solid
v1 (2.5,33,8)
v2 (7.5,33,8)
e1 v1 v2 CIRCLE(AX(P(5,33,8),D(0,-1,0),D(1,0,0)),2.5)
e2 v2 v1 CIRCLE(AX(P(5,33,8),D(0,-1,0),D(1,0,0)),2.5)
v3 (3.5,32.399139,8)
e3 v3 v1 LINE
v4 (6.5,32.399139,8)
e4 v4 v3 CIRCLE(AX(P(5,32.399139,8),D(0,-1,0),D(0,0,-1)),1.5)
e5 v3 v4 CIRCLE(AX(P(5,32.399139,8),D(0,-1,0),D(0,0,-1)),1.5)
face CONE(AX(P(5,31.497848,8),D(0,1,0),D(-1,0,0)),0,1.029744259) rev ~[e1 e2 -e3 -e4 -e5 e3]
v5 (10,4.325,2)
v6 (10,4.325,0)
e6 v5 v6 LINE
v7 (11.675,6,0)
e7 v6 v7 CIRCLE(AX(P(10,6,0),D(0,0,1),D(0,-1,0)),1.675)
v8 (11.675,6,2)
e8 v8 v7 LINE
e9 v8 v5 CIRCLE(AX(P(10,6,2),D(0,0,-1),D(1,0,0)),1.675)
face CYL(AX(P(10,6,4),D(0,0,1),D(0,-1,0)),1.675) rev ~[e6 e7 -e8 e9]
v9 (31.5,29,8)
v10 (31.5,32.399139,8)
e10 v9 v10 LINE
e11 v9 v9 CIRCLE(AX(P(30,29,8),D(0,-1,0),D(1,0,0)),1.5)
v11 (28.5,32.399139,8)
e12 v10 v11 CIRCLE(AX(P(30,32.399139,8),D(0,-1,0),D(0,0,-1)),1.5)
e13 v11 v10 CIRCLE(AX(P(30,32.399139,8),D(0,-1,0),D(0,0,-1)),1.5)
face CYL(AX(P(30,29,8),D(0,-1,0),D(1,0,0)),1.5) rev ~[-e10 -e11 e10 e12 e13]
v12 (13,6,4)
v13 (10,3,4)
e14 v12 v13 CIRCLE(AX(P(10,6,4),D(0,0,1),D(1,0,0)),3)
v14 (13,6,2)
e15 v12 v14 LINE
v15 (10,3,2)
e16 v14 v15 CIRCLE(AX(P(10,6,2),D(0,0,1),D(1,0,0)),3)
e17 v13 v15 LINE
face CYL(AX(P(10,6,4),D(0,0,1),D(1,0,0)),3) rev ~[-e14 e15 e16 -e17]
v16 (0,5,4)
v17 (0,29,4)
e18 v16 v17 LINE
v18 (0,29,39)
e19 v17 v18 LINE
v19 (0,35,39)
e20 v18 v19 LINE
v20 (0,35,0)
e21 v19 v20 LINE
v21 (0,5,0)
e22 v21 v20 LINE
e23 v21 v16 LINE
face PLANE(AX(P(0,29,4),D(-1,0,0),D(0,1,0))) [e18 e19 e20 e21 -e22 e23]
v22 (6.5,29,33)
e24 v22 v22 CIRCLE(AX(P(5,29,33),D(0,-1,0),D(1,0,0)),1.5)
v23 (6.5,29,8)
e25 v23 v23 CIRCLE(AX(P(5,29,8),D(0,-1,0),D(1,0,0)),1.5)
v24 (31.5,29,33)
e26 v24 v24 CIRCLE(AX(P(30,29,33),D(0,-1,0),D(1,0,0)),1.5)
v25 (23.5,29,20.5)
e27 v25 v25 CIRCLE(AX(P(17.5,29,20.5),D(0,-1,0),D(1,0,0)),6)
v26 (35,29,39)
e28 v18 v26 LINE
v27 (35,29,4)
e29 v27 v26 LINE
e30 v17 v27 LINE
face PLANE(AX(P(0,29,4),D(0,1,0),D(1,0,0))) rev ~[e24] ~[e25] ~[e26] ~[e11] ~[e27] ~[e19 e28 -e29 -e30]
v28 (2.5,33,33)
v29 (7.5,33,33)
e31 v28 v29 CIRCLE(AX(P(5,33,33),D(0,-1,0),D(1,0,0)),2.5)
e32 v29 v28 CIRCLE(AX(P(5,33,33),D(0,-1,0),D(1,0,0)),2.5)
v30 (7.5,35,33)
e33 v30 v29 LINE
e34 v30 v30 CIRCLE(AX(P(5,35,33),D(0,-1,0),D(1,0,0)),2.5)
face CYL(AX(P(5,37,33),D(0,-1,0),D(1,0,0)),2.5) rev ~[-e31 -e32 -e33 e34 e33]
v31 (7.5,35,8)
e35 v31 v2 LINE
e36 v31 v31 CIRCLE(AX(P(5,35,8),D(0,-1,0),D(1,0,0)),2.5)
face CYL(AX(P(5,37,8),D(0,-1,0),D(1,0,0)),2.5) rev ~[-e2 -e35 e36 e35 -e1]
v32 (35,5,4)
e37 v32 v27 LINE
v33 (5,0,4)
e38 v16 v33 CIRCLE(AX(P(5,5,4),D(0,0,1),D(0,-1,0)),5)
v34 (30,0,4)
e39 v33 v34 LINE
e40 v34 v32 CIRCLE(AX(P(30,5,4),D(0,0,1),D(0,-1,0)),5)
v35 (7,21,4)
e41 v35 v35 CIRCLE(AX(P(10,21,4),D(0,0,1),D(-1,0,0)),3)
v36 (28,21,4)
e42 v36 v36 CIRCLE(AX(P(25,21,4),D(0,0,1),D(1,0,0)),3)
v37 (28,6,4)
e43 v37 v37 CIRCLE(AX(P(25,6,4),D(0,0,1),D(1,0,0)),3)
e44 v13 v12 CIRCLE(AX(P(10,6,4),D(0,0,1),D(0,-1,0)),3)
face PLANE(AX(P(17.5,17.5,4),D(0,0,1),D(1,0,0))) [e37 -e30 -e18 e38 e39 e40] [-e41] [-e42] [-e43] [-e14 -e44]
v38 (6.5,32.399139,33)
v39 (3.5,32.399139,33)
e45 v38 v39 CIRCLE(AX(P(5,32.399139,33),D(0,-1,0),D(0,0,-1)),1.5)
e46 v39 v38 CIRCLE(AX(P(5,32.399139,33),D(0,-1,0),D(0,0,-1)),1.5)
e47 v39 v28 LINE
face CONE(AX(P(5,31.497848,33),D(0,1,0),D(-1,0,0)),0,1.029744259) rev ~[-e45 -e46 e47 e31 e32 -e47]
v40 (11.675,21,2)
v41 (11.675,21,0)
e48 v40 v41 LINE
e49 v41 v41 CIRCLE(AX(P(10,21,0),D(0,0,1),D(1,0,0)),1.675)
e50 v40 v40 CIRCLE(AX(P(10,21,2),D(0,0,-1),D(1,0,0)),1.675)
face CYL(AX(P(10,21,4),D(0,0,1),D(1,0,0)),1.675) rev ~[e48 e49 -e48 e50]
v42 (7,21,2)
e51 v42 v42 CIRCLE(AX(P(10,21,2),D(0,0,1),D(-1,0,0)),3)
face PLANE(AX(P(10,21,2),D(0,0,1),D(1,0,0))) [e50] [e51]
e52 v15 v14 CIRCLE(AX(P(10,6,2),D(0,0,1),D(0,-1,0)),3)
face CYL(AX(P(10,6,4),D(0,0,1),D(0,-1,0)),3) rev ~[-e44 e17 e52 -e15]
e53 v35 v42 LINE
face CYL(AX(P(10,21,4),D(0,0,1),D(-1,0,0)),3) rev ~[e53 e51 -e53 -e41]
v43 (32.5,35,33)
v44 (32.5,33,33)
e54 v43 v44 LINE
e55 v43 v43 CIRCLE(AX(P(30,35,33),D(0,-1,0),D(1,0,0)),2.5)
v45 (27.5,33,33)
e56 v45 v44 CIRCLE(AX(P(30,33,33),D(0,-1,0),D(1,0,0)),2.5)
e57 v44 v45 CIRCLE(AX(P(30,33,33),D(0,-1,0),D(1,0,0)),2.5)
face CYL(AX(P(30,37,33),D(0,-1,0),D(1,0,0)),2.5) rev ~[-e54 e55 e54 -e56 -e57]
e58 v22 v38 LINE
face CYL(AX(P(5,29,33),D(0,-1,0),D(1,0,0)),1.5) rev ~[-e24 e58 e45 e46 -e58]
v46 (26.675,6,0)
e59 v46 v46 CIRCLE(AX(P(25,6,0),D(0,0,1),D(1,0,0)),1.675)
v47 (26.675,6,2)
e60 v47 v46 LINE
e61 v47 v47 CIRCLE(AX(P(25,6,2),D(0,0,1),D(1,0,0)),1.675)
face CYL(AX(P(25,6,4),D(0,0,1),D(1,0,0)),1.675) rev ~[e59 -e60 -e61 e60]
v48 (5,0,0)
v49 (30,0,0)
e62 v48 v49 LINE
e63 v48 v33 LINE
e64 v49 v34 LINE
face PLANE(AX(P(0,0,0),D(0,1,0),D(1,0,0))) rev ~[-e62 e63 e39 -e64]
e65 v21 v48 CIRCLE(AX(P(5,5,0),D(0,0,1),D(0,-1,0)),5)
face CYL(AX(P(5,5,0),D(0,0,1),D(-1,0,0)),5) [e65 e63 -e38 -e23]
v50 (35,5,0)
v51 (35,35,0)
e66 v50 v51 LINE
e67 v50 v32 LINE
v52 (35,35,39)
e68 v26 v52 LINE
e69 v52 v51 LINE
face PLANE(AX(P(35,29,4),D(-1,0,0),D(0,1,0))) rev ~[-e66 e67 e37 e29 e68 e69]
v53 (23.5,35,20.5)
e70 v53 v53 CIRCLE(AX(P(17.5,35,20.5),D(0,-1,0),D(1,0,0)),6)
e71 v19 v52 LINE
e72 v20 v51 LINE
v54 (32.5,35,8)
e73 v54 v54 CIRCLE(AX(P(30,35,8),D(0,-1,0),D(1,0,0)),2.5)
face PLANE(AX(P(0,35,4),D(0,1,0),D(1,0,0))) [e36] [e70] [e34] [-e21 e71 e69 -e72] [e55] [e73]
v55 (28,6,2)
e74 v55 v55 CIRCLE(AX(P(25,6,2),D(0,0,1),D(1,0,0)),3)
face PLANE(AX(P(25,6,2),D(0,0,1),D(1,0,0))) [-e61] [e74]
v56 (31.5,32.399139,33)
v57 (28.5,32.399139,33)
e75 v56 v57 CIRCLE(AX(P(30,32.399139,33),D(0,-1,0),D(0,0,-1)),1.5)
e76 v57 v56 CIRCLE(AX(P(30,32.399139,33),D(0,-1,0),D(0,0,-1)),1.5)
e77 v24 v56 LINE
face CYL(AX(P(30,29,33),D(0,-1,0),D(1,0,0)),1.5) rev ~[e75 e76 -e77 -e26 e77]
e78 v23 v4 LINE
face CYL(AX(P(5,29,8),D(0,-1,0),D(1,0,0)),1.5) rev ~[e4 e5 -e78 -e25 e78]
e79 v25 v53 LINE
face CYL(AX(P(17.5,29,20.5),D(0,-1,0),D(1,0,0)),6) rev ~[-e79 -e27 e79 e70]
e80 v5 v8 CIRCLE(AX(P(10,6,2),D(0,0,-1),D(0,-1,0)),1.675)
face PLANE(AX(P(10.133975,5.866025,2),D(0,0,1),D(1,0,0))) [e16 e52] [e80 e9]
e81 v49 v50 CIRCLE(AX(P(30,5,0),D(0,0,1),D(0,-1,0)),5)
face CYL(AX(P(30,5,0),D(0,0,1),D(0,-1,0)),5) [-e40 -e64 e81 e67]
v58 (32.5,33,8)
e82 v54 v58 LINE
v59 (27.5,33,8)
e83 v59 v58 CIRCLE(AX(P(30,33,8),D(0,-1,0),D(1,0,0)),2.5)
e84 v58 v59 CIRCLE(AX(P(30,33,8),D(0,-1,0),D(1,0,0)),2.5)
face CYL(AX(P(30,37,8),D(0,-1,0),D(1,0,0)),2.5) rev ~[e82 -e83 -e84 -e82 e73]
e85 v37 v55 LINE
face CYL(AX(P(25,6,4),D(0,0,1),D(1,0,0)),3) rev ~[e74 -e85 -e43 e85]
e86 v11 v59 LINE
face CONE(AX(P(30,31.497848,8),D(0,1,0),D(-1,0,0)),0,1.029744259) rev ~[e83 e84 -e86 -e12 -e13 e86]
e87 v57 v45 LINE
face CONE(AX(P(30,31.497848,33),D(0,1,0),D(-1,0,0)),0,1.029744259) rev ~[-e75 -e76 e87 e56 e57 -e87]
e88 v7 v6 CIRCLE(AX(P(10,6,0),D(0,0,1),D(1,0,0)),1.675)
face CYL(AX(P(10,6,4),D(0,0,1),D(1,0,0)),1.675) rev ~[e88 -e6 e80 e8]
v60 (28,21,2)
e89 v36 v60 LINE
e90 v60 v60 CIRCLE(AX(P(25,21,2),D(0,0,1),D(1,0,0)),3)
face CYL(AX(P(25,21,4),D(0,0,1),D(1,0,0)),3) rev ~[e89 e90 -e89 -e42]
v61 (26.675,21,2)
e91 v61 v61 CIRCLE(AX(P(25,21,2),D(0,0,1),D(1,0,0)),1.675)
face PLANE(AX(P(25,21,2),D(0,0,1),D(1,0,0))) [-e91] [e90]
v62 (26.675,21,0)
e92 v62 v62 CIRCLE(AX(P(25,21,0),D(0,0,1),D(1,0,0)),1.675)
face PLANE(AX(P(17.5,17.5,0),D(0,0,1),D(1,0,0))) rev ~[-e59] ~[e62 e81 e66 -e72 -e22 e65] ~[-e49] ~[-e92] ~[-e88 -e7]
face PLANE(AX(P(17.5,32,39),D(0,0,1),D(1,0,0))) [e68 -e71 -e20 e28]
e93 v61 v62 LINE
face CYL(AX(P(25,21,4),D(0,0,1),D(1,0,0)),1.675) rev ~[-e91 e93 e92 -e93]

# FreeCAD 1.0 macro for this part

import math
import FreeCAD as App
import Part
import Sketcher
from FreeCAD import Vector


def edges_at(feature, points):
    """Names of the edges that pass closest to the given points."""
    edges = feature.Shape.Edges
    near = lambda p: min(range(len(edges)), key=lambda i: edges[i].distToShape(Part.Vertex(*p))[0])
    return sorted({f"Edge{near(p) + 1}" for p in points})


def add_polygon(sketch, points):
    """Adds a closed chain of lines whose ends are joined by coincident constraints."""
    first, n = sketch.GeometryCount, len(points)
    for a, b in zip(points, points[1:] + points[:1]):
        sketch.addGeometry(Part.LineSegment(App.Vector(*a, 0), App.Vector(*b, 0)), False)
    for i in range(n):
        sketch.addConstraint(Sketcher.Constraint("Coincident", first + i, 2, first + (i + 1) % n, 1))

doc = App.newDocument("Part")
body = doc.addObject("PartDesign::Body", "Body")

# Sketch on XY plane
sketch1 = doc.addObject("Sketcher::SketchObject", "Sketch")
body.addObject(sketch1)
sketch1.AttachmentSupport = (doc.XY_Plane, [""])
sketch1.MapMode = "FlatFace"
add_polygon(sketch1, [(0, 35), (0, 0), (35, 0), (35, 35)])  # lines 0-3
sketch1.addConstraint([
    Sketcher.Constraint("Vertical", 0),
    Sketcher.Constraint("Horizontal", 1),
    Sketcher.Constraint("Vertical", 2),
    Sketcher.Constraint("Horizontal", 3),
    Sketcher.Constraint("Coincident", 0, 2, -1, 1),
    Sketcher.Constraint("Equal", 3, 0),
    Sketcher.Constraint("DistanceX", 1, 1, 1, 2, 35.0),
])
pad1 = doc.addObject("PartDesign::Pad", "Pad")
body.addObject(pad1)
pad1.Profile = sketch1
pad1.Length = 4

# Sketch on XY plane
sketch2 = doc.addObject("Sketcher::SketchObject", "Sketch001")
body.addObject(sketch2)
sketch2.AttachmentSupport = (doc.XY_Plane, [""])
sketch2.MapMode = "FlatFace"
sketch2.AttachmentOffset = App.Placement(Vector(0, 0, 4), App.Rotation())
sketch2.addGeometry([
    Part.Circle(Vector(10, 21, 0), Vector(0, 0, 1), 3),  # 0
    Part.Circle(Vector(10, 21, 0), Vector(0, 0, 1), 1.675),  # 1
    Part.Circle(Vector(25, 21, 0), Vector(0, 0, 1), 3),  # 2
    Part.Circle(Vector(25, 21, 0), Vector(0, 0, 1), 1.675),  # 3
    Part.Circle(Vector(25, 6, 0), Vector(0, 0, 1), 3),  # 4
    Part.Circle(Vector(25, 6, 0), Vector(0, 0, 1), 1.675),  # 5
    Part.ArcOfCircle(Part.Circle(Vector(10, 6, 0), Vector(0, 0, 1), 3), math.radians(0), math.radians(270)),  # 6
    Part.ArcOfCircle(Part.Circle(Vector(10, 6, 0), Vector(0, 0, 1), 3), math.radians(-90), math.radians(0)),  # 7
    Part.ArcOfCircle(Part.Circle(Vector(10, 6, 0), Vector(0, 0, 1), 1.675), math.radians(0), math.radians(270)),  # 8
    Part.ArcOfCircle(Part.Circle(Vector(10, 6, 0), Vector(0, 0, 1), 1.675), math.radians(-90), math.radians(0)),  # 9
], False)
sketch2.addConstraint([
    Sketcher.Constraint("Tangent", 6, 1, 7, 2),
    Sketcher.Constraint("Coincident", 7, 1, 6, 2),
    Sketcher.Constraint("Tangent", 8, 1, 9, 2),
    Sketcher.Constraint("Coincident", 9, 1, 8, 2),
    Sketcher.Constraint("Coincident", 1, 3, 0, 3),
    Sketcher.Constraint("Coincident", 3, 3, 2, 3),
    Sketcher.Constraint("Coincident", 5, 3, 4, 3),
    Sketcher.Constraint("Coincident", 8, 3, 6, 3),
    Sketcher.Constraint("Equal", 0, 2),
    Sketcher.Constraint("Equal", 1, 3),
    Sketcher.Constraint("Equal", 2, 4),
    Sketcher.Constraint("Equal", 3, 5),
    Sketcher.Constraint("Equal", 4, 6),
    Sketcher.Constraint("Equal", 5, 8),
    Sketcher.Constraint("Horizontal", 1, 3, 2, 3),
    Sketcher.Constraint("Horizontal", 5, 3, 6, 3),
    Sketcher.Constraint("Horizontal", 9, 3, 6, 1),
    Sketcher.Constraint("Horizontal", 6, 1, 8, 1),
    Sketcher.Constraint("Vertical", 3, 3, 4, 3),
    Sketcher.Constraint("Vertical", 1, 3, 6, 3),
    Sketcher.Constraint("Vertical", 9, 3, 7, 1),
    Sketcher.Constraint("Vertical", 7, 1, 9, 1),
    Sketcher.Constraint("Diameter", 0, 6.0),
    Sketcher.Constraint("Diameter", 1, 3.35),
    Sketcher.Constraint("DistanceX", -1, 1, 0, 3, 10.0),
    Sketcher.Constraint("DistanceY", -1, 1, 0, 3, 21.0),
    Sketcher.Constraint("DistanceX", -1, 1, 2, 3, 25.0),
    Sketcher.Constraint("DistanceY", -1, 1, 4, 3, 6.0),
])
pocket1 = doc.addObject("PartDesign::Pocket", "Pocket")
body.addObject(pocket1)
pocket1.Profile = sketch2
pocket1.Length = 2
doc.recompute()

fillet = doc.addObject("PartDesign::Fillet", "Fillet")
body.addObject(fillet)
fillet.Base = (pocket1, edges_at(pocket1, [(0, 0, 2), (35, 0, 2)]))
fillet.Radius = 5

# Sketch on XY plane
sketch3 = doc.addObject("Sketcher::SketchObject", "Sketch002")
body.addObject(sketch3)
sketch3.AttachmentSupport = (doc.XY_Plane, [""])
sketch3.MapMode = "FlatFace"
sketch3.AttachmentOffset = App.Placement(Vector(0, 0, 4), App.Rotation())
sketch3.addGeometry([
    Part.Circle(Vector(10, 21, 0), Vector(0, 0, 1), 1.675),  # 0
    Part.Circle(Vector(25, 21, 0), Vector(0, 0, 1), 1.675),  # 1
    Part.Circle(Vector(25, 6, 0), Vector(0, 0, 1), 1.675),  # 2
    Part.ArcOfCircle(Part.Circle(Vector(10, 6, 0), Vector(0, 0, 1), 1.675), math.radians(0), math.radians(270)),  # 3
    Part.ArcOfCircle(Part.Circle(Vector(10, 6, 0), Vector(0, 0, 1), 1.675), math.radians(-90), math.radians(0)),  # 4
], False)
sketch3.addConstraint([
    Sketcher.Constraint("Tangent", 3, 1, 4, 2),
    Sketcher.Constraint("Coincident", 4, 1, 3, 2),
    Sketcher.Constraint("Equal", 0, 1),
    Sketcher.Constraint("Equal", 1, 2),
    Sketcher.Constraint("Equal", 2, 3),
    Sketcher.Constraint("Horizontal", 0, 3, 1, 3),
    Sketcher.Constraint("Horizontal", 2, 3, 3, 3),
    Sketcher.Constraint("Horizontal", 4, 3, 3, 1),
    Sketcher.Constraint("Vertical", 1, 3, 2, 3),
    Sketcher.Constraint("Vertical", 0, 3, 3, 3),
    Sketcher.Constraint("Vertical", 3, 3, 4, 1),
    Sketcher.Constraint("Diameter", 0, 3.35),
    Sketcher.Constraint("DistanceX", -1, 1, 0, 3, 10.0),
    Sketcher.Constraint("DistanceY", -1, 1, 0, 3, 21.0),
    Sketcher.Constraint("DistanceX", -1, 1, 1, 3, 25.0),
    Sketcher.Constraint("DistanceY", -1, 1, 2, 3, 6.0),
])
pocket2 = doc.addObject("PartDesign::Pocket", "Pocket001")
body.addObject(pocket2)
pocket2.Profile = sketch3
pocket2.Length = 25
pocket2.Midplane = True

# Sketch on XY plane
sketch4 = doc.addObject("Sketcher::SketchObject", "Sketch003")
body.addObject(sketch4)
sketch4.AttachmentSupport = (doc.XY_Plane, [""])
sketch4.MapMode = "FlatFace"
sketch4.AttachmentOffset = App.Placement(Vector(0, 0, 4), App.Rotation())
add_polygon(sketch4, [(0, 35), (0, 29), (35, 29), (35, 35)])  # lines 0-3
sketch4.addConstraint([
    Sketcher.Constraint("Vertical", 0),
    Sketcher.Constraint("Horizontal", 1),
    Sketcher.Constraint("Vertical", 2),
    Sketcher.Constraint("Horizontal", 3),
    Sketcher.Constraint("PointOnObject", 0, 2, -2),
    Sketcher.Constraint("DistanceX", 1, 1, 1, 2, 35.0),
    Sketcher.Constraint("DistanceY", 0, 2, 0, 1, 6.0),
    Sketcher.Constraint("DistanceY", -1, 1, 0, 2, 29.0),
])
pad2 = doc.addObject("PartDesign::Pad", "Pad001")
body.addObject(pad2)
pad2.Profile = sketch4
pad2.Length = 35

# Sketch on XZ plane
sketch5 = doc.addObject("Sketcher::SketchObject", "Sketch004")
body.addObject(sketch5)
sketch5.AttachmentSupport = (doc.XZ_Plane, [""])
sketch5.MapMode = "FlatFace"
sketch5.AttachmentOffset = App.Placement(Vector(0, 0, -29), App.Rotation())
sketch5.addGeometry([
    Part.Circle(Vector(17.5, 20.5, 0), Vector(0, 0, 1), 6),  # 0
    Part.Circle(Vector(30, 33, 0), Vector(0, 0, 1), 1.5),  # 1
    Part.Circle(Vector(5, 33, 0), Vector(0, 0, 1), 1.5),  # 2
    Part.Circle(Vector(5, 8, 0), Vector(0, 0, 1), 1.5),  # 3
    Part.Circle(Vector(30, 8, 0), Vector(0, 0, 1), 1.5),  # 4
], False)
sketch5.addConstraint([
    Sketcher.Constraint("Equal", 1, 2),
    Sketcher.Constraint("Equal", 2, 3),
    Sketcher.Constraint("Equal", 3, 4),
    Sketcher.Constraint("Horizontal", 1, 3, 2, 3),
    Sketcher.Constraint("Horizontal", 3, 3, 4, 3),
    Sketcher.Constraint("Vertical", 2, 3, 3, 3),
    Sketcher.Constraint("Vertical", 1, 3, 4, 3),
    Sketcher.Constraint("Diameter", 0, 12.0),
    Sketcher.Constraint("Diameter", 1, 3.0),
    Sketcher.Constraint("DistanceX", -1, 1, 1, 3, 30.0),
    Sketcher.Constraint("DistanceY", -1, 1, 1, 3, 33.0),
    Sketcher.Constraint("DistanceX", -1, 1, 2, 3, 5.0),
    Sketcher.Constraint("DistanceY", -1, 1, 3, 3, 8.0),
    Sketcher.Constraint("DistanceX", -1, 1, 0, 3, 17.5),
    Sketcher.Constraint("DistanceY", -1, 1, 0, 3, 20.5),
])
pocket3 = doc.addObject("PartDesign::Pocket", "Pocket002")
body.addObject(pocket3)
pocket3.Profile = sketch5
pocket3.Type = "ThroughAll"

# Sketch on XZ plane
sketch6 = doc.addObject("Sketcher::SketchObject", "Sketch005")
body.addObject(sketch6)
sketch6.AttachmentSupport = (doc.XZ_Plane, [""])
sketch6.MapMode = "FlatFace"
sketch6.AttachmentOffset = App.Placement(Vector(0, 0, -35), App.Rotation())
sketch6.addGeometry([
    Part.Circle(Vector(30, 33, 0), Vector(0, 0, 1), 2.5),
    Part.Circle(Vector(30, 8, 0), Vector(0, 0, 1), 2.5),
    Part.Circle(Vector(5, 8, 0), Vector(0, 0, 1), 2.5),
    Part.Circle(Vector(5, 33, 0), Vector(0, 0, 1), 2.5),
], False)
sketch6.addConstraint([
    Sketcher.Constraint("Equal", 0, 1),
    Sketcher.Constraint("Equal", 1, 2),
    Sketcher.Constraint("Equal", 2, 3),
    Sketcher.Constraint("Horizontal", 1, 3, 2, 3),
    Sketcher.Constraint("Horizontal", 0, 3, 3, 3),
    Sketcher.Constraint("Vertical", 0, 3, 1, 3),
    Sketcher.Constraint("Vertical", 2, 3, 3, 3),
    Sketcher.Constraint("Diameter", 0, 5.0),
    Sketcher.Constraint("DistanceX", -1, 1, 0, 3, 30.0),
    Sketcher.Constraint("DistanceY", -1, 1, 0, 3, 33.0),
    Sketcher.Constraint("DistanceY", -1, 1, 1, 3, 8.0),
    Sketcher.Constraint("DistanceX", -1, 1, 2, 3, 5.0),
])
doc.recompute()
hole = doc.addObject("PartDesign::Hole", "Hole")
body.addObject(hole)
hole.Profile = sketch6
hole.ThreadType = "None"
hole.Diameter = 5
hole.DepthType = "Dimension"
hole.Depth = 2
hole.DrillPoint = "Angled"
hole.DrillPointAngle = 118
hole.Reversed = True

doc.recompute()
